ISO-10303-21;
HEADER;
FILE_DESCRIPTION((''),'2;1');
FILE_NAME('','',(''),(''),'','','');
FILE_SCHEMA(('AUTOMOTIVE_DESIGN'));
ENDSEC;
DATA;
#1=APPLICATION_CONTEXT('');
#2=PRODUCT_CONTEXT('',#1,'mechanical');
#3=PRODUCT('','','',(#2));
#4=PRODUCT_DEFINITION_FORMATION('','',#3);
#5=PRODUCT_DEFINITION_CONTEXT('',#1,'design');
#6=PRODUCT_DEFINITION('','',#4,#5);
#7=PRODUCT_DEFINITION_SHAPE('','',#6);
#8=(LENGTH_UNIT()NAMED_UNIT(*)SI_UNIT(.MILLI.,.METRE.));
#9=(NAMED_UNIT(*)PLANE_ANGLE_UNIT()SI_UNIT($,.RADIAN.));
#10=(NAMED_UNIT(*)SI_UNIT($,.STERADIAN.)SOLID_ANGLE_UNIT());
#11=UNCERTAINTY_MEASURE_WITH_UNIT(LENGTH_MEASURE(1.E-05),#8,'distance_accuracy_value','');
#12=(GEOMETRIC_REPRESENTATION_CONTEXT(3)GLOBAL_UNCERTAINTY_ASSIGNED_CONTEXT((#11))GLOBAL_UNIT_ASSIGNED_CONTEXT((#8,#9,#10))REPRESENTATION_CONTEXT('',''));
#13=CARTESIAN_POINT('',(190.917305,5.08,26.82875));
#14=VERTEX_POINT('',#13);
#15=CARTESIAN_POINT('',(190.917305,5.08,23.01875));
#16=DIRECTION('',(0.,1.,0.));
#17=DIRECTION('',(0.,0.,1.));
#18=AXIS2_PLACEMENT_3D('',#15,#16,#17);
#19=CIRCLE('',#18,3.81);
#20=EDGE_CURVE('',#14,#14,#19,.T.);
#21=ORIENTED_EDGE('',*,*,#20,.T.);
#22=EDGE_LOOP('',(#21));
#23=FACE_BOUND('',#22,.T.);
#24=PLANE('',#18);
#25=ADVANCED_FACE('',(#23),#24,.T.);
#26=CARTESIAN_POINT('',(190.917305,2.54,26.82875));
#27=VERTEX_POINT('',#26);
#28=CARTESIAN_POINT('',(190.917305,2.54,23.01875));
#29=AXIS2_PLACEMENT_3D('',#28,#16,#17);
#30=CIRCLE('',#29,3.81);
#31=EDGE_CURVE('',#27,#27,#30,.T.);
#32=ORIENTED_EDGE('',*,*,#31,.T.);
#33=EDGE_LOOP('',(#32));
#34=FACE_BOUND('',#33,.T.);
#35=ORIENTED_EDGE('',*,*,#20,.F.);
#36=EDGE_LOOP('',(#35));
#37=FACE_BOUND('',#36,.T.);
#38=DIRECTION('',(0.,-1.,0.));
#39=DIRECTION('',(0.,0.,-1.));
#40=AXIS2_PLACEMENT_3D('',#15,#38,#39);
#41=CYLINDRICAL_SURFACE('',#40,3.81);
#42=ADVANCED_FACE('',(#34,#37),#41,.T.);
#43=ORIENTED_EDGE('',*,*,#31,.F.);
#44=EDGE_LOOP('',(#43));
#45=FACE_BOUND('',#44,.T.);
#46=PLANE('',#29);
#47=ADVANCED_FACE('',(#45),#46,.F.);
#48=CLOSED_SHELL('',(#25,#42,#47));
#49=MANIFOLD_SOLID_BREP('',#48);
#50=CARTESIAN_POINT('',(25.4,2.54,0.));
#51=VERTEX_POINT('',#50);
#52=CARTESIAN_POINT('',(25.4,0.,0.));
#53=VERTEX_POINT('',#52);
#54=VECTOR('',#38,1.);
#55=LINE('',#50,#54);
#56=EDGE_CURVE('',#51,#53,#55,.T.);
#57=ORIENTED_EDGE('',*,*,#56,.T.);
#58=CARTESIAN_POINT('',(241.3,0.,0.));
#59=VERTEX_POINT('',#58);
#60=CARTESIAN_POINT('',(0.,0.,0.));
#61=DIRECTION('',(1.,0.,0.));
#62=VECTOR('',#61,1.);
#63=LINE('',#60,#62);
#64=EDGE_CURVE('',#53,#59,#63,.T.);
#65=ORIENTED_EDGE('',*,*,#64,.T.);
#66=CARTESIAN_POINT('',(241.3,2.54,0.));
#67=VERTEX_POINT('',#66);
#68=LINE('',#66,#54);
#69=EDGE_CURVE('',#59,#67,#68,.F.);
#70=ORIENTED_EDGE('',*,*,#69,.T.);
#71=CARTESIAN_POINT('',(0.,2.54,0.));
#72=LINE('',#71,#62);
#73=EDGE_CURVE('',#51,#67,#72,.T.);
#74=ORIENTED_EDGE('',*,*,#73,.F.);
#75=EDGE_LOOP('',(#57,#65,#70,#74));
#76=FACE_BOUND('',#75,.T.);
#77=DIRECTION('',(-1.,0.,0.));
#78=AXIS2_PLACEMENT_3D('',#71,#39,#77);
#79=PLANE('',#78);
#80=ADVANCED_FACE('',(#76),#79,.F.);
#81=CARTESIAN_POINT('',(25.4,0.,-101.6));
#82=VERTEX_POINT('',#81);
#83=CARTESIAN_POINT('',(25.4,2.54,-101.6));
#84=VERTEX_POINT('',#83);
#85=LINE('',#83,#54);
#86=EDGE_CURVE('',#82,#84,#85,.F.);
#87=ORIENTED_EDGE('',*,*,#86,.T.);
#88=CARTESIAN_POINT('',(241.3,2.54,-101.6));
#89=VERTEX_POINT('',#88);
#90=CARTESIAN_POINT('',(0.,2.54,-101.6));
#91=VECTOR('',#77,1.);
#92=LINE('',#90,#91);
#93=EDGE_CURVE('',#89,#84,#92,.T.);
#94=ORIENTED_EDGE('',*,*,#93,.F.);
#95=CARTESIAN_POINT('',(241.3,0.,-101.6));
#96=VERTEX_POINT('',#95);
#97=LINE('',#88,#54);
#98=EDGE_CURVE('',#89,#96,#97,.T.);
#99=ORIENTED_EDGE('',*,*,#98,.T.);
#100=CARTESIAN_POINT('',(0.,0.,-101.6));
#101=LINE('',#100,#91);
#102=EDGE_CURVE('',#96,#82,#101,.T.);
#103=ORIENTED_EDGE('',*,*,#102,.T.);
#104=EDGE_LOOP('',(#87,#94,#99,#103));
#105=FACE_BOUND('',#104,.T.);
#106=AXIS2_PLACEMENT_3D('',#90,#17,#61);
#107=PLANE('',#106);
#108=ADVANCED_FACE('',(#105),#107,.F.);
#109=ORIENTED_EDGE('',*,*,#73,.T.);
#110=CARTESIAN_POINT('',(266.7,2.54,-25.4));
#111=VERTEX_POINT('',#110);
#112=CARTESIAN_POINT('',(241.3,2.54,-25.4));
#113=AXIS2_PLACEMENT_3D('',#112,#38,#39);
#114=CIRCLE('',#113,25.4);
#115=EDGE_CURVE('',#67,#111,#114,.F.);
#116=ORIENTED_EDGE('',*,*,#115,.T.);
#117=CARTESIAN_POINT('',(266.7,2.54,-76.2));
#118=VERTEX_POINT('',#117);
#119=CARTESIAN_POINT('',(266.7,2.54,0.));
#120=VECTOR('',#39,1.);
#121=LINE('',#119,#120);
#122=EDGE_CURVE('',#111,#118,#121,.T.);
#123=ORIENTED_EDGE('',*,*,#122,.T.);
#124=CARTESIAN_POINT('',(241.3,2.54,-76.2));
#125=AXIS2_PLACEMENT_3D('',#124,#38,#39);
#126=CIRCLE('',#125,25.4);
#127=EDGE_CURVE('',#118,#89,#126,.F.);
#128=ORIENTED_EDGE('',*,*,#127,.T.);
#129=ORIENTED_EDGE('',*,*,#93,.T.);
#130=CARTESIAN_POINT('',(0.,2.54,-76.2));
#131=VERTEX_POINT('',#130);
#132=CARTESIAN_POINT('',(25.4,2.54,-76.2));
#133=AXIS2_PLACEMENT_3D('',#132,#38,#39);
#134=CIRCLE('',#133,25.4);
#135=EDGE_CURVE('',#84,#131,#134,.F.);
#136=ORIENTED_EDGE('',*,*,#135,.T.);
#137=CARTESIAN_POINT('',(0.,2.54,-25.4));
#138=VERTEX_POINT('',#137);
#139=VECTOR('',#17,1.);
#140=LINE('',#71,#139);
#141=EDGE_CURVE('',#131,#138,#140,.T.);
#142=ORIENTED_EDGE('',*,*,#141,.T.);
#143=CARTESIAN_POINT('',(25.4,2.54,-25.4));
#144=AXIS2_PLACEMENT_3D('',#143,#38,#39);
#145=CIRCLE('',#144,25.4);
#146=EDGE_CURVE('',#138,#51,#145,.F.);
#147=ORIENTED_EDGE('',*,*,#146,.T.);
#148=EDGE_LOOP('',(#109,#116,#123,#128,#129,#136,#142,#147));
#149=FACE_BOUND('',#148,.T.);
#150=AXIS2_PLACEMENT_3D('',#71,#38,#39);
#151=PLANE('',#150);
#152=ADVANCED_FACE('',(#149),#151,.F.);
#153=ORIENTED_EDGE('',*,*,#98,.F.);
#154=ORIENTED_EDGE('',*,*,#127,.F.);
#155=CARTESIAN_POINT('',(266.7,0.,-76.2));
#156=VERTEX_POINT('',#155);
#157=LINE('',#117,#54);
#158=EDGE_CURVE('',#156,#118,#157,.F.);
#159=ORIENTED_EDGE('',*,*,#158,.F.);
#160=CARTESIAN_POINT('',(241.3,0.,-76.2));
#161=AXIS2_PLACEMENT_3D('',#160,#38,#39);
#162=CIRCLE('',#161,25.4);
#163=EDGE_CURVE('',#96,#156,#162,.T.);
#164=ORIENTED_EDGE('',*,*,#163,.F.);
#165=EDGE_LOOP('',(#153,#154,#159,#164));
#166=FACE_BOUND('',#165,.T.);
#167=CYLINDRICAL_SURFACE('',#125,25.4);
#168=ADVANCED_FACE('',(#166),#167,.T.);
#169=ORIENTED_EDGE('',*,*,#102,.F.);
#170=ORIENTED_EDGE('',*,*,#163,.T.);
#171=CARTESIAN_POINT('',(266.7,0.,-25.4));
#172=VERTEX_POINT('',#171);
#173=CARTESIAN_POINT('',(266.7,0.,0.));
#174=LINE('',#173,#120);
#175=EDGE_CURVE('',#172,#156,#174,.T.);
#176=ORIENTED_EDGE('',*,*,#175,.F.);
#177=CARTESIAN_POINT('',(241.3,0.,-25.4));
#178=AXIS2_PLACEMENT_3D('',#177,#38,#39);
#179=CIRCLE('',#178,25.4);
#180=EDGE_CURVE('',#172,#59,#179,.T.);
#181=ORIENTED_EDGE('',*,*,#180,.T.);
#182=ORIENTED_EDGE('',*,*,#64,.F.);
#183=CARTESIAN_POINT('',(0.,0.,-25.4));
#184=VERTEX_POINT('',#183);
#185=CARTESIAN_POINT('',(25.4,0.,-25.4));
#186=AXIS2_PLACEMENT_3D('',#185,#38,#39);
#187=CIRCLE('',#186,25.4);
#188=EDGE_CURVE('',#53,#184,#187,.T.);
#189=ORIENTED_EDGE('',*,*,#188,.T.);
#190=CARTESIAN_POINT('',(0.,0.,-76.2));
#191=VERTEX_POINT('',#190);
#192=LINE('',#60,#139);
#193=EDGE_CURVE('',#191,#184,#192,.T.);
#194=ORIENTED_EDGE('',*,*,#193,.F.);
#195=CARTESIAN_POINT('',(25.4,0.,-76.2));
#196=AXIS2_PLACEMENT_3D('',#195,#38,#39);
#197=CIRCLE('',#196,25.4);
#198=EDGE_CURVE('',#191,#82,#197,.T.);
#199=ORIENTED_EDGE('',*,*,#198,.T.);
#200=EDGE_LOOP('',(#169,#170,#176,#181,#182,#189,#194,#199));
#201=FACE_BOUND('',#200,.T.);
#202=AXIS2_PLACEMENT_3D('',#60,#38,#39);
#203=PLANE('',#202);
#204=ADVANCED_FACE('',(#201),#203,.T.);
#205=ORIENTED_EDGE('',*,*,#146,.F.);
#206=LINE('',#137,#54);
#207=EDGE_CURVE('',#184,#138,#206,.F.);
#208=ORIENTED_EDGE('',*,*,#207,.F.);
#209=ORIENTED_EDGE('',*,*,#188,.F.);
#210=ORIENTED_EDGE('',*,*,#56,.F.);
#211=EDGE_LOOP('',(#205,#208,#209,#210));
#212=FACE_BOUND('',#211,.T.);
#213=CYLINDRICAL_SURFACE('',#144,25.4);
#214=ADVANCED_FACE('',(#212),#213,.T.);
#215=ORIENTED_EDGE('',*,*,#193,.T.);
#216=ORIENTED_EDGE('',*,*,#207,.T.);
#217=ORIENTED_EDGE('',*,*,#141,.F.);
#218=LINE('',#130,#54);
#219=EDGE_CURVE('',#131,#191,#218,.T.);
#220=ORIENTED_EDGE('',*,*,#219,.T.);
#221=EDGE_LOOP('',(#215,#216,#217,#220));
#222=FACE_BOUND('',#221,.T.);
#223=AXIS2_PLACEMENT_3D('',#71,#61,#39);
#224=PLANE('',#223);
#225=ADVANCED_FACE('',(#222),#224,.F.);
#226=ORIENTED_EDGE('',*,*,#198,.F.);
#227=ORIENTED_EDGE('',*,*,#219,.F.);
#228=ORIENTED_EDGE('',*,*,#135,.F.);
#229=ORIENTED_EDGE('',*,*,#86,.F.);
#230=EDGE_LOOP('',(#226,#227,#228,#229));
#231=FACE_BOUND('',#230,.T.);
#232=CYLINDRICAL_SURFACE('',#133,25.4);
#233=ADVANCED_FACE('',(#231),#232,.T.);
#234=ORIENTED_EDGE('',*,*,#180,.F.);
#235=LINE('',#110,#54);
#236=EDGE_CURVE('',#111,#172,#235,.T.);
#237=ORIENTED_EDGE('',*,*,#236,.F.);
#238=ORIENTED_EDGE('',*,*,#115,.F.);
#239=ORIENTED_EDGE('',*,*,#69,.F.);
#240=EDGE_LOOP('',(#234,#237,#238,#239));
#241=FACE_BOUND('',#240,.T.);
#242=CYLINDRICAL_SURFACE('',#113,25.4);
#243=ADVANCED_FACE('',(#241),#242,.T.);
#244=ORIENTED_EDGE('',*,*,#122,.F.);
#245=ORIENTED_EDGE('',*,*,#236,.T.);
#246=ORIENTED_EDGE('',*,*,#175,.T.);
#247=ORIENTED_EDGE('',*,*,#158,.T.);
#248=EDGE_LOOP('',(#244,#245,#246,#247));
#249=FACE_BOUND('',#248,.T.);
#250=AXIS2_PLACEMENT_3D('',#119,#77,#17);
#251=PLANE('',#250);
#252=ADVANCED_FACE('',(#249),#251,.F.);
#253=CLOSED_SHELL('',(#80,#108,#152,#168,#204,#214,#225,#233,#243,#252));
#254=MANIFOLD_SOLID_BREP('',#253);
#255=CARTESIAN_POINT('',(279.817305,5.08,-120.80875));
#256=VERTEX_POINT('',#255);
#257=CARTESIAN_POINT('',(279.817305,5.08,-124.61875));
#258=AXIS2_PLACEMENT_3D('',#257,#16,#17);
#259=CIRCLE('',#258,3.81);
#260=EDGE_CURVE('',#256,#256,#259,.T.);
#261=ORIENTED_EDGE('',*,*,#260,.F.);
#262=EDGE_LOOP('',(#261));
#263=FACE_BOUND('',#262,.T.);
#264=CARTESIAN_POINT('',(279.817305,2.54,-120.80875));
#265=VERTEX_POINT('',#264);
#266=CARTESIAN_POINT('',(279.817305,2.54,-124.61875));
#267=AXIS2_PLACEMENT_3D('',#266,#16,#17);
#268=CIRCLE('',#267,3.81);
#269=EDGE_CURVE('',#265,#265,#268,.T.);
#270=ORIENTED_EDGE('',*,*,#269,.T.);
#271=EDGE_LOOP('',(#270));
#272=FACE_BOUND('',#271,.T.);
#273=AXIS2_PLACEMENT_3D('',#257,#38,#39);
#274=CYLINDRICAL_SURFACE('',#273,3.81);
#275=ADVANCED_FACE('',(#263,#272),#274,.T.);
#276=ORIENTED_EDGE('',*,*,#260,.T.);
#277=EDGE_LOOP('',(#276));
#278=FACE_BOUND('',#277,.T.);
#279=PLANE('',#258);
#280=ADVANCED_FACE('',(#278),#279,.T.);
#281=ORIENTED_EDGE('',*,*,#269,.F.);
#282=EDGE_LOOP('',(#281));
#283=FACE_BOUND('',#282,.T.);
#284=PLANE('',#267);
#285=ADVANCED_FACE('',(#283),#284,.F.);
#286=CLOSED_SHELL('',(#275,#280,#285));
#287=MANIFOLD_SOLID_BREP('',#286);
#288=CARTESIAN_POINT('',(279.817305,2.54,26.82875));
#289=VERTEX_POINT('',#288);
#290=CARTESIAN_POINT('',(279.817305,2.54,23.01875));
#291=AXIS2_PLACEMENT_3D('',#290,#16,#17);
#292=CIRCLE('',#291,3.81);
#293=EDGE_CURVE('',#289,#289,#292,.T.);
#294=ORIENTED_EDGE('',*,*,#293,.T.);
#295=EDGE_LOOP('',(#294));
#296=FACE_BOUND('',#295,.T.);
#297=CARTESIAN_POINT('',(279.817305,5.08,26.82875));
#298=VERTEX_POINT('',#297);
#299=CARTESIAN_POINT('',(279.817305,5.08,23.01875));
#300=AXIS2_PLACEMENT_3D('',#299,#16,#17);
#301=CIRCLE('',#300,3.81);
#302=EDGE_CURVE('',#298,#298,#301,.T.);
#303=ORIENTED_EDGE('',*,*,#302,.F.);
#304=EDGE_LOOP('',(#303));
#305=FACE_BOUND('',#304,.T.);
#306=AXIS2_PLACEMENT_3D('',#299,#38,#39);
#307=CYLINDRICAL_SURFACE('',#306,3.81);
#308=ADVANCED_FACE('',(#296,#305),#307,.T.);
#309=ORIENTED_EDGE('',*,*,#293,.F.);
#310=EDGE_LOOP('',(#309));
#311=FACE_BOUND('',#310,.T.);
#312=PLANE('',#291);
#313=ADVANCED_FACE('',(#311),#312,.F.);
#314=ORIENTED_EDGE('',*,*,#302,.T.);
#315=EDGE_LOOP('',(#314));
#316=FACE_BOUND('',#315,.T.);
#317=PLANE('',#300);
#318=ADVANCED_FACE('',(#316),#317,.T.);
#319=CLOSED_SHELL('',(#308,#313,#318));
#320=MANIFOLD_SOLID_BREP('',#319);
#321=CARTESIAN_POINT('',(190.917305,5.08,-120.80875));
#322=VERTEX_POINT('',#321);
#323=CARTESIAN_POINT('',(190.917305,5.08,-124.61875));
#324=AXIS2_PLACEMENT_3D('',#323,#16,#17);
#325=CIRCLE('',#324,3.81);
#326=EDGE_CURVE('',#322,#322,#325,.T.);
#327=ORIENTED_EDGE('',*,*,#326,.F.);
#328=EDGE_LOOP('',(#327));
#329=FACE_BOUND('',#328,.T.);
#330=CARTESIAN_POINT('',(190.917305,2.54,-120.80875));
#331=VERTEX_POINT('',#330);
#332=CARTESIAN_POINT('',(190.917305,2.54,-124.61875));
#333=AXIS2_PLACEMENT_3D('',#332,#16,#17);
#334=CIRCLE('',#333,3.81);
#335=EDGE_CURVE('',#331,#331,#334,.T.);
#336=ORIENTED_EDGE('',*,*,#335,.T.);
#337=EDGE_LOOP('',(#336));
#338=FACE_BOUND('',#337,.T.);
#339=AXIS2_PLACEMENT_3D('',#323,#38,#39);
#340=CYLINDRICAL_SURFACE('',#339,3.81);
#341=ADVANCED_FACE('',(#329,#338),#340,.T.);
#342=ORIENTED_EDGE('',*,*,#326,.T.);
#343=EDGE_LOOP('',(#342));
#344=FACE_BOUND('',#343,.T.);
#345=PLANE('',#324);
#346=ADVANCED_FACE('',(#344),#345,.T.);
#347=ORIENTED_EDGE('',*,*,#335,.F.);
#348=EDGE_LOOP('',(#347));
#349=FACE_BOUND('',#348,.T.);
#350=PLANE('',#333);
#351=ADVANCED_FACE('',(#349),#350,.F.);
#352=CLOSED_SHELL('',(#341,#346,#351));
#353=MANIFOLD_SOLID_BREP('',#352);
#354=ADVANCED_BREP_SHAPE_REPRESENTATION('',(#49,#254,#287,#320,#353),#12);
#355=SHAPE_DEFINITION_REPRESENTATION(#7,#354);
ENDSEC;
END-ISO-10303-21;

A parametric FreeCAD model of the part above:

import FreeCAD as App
import Part
import Sketcher
Q = App.Units.Quantity


def edges_at(feature, points):
    """Names of the edges that pass closest to the given points."""
    edges = feature.Shape.Edges
    near = lambda p: min(range(len(edges)), key=lambda i: edges[i].distToShape(Part.Vertex(*p))[0])
    return sorted({f"Edge{near(p) + 1}" for p in points})


def add_polygon(sketch, points):
    """Adds a closed chain of lines whose ends are joined by coincident constraints."""
    first, n = sketch.GeometryCount, len(points)
    for a, b in zip(points, points[1:] + points[:1]):
        sketch.addGeometry(Part.LineSegment(App.Vector(*a, 0), App.Vector(*b, 0)), False)
    for i in range(n):
        sketch.addConstraint(Sketcher.Constraint("Coincident", first + i, 2, first + (i + 1) % n, 1))

doc = App.newDocument("Part")
params = doc.addObject("Spreadsheet::Sheet", "Params")
for row, (alias, value) in enumerate([
    ("sketch1_height", "4 in"),
    ("sketch1_width", "10.5 in"),
    ("pad1_length", "0.1 in"),
    ("fillet_radius", "1 in"),
    ("sketch2_diameter", "0.3 in"),
    ("pad2_length", "0.1 in"),
    ("sketch3_diameter", "0.3 in"),
    ("pad3_length", "0.1 in"),
    ("sketch4_diameter", "0.3 in"),
    ("pad4_length", "0.1 in"),
    ("sketch5_diameter", "0.3 in"),
    ("pad5_length", "0.1 in"),
], start=1):
    params.set(f"A{row}", alias)
    params.set(f"B{row}", "=" + value)
    params.setAlias(f"B{row}", alias)

body = doc.addObject("PartDesign::Body", "Body")

sketch1 = doc.addObject("Sketcher::SketchObject", "Sketch")
body.addObject(sketch1)
sketch1.AttachmentSupport = (doc.XZ_Plane, [""])
sketch1.MapMode = "FlatFace"
add_polygon(sketch1, [(0, -102), (0, 0), (267, 0), (267, -102)])
sketch1.addConstraint([
    Sketcher.Constraint("Vertical", 0),
    Sketcher.Constraint("Horizontal", 1),
    Sketcher.Constraint("Vertical", 2),
    Sketcher.Constraint("Horizontal", 3),
    Sketcher.Constraint("Coincident", 0, 2, -1, 1),
    Sketcher.Constraint("DistanceY", 0, 1, 0, 2, Q("4 in")),
    Sketcher.Constraint("DistanceX", 1, 1, 1, 2, Q("10.5 in")),
])
sketch1.setExpression("Constraints[9]", "Params.sketch1_height")
sketch1.setExpression("Constraints[10]", "Params.sketch1_width")
pad1 = doc.addObject("PartDesign::Pad", "Pad")
body.addObject(pad1)
pad1.Profile = sketch1
pad1.setExpression("Length", "Params.pad1_length")
pad1.Reversed = True
doc.recompute()

fillet = doc.addObject("PartDesign::Fillet", "Fillet")
body.addObject(fillet)
fillet.Base = (pad1, edges_at(pad1, [
    (0, 1.27, -101.6),
    (266.7, 1.27, -101.6),
    (266.7, 1.27, 0),
    (0, 1.27, 0),
]))
fillet.setExpression("Radius", "Params.fillet_radius")
body2 = doc.addObject("PartDesign::Body", "Body001")

sketch2 = doc.addObject("Sketcher::SketchObject", "Sketch001")
body2.addObject(sketch2)
sketch2.AttachmentSupport = (doc.getObject("XZ_Plane001"), [""])
sketch2.MapMode = "FlatFace"
sketch2.AttachmentOffset = App.Placement(App.Vector(0, 0, -0.1 * 25.4), App.Rotation())
sketch2.addGeometry(Part.Circle(App.Vector(190.9, -124.6, 0), App.Vector(0, 0, 1), 3.8), False)
sketch2.addConstraint([
    Sketcher.Constraint("Diameter", 0, Q("0.3 in")),
    Sketcher.Constraint("DistanceY", 0, 3, -1, 1, Q("4.90625 in")),
    Sketcher.Constraint("DistanceX", -1, 1, 0, 3, 190.917305),
])
sketch2.setExpression("Constraints[0]", "Params.sketch2_diameter")
pad2 = doc.addObject("PartDesign::Pad", "Pad001")
body2.addObject(pad2)
pad2.Profile = sketch2
pad2.setExpression("Length", "Params.pad2_length")
pad2.Reversed = True
body3 = doc.addObject("PartDesign::Body", "Body002")

sketch3 = doc.addObject("Sketcher::SketchObject", "Sketch002")
body3.addObject(sketch3)
sketch3.AttachmentSupport = (doc.getObject("XZ_Plane002"), [""])
sketch3.MapMode = "FlatFace"
sketch3.AttachmentOffset = App.Placement(App.Vector(0, 0, -0.1 * 25.4), App.Rotation())
sketch3.addGeometry(Part.Circle(App.Vector(279.8, -124.6, 0), App.Vector(0, 0, 1), 3.8), False)
sketch3.addConstraint([
    Sketcher.Constraint("Diameter", 0, Q("0.3 in")),
    Sketcher.Constraint("DistanceY", 0, 3, -1, 1, Q("4.90625 in")),
    Sketcher.Constraint("DistanceX", -1, 1, 0, 3, 279.817305),
])
sketch3.setExpression("Constraints[0]", "Params.sketch3_diameter")
pad3 = doc.addObject("PartDesign::Pad", "Pad002")
body3.addObject(pad3)
pad3.Profile = sketch3
pad3.setExpression("Length", "Params.pad3_length")
pad3.Reversed = True
body4 = doc.addObject("PartDesign::Body", "Body003")

sketch4 = doc.addObject("Sketcher::SketchObject", "Sketch003")
body4.addObject(sketch4)
sketch4.AttachmentSupport = (doc.getObject("XZ_Plane003"), [""])
sketch4.MapMode = "FlatFace"
sketch4.AttachmentOffset = App.Placement(App.Vector(0, 0, -0.1 * 25.4), App.Rotation())
sketch4.addGeometry(Part.Circle(App.Vector(279.8, 23, 0), App.Vector(0, 0, 1), 3.8), False)
sketch4.addConstraint([
    Sketcher.Constraint("Diameter", 0, Q("0.3 in")),
    Sketcher.Constraint("DistanceY", -1, 1, 0, 3, Q("0.90625 in")),
    Sketcher.Constraint("DistanceX", -1, 1, 0, 3, 279.817305),
])
sketch4.setExpression("Constraints[0]", "Params.sketch4_diameter")
pad4 = doc.addObject("PartDesign::Pad", "Pad003")
body4.addObject(pad4)
pad4.Profile = sketch4
pad4.setExpression("Length", "Params.pad4_length")
pad4.Reversed = True
body5 = doc.addObject("PartDesign::Body", "Body004")

sketch5 = doc.addObject("Sketcher::SketchObject", "Sketch004")
body5.addObject(sketch5)
sketch5.AttachmentSupport = (doc.getObject("XZ_Plane004"), [""])
sketch5.MapMode = "FlatFace"
sketch5.AttachmentOffset = App.Placement(App.Vector(0, 0, -0.1 * 25.4), App.Rotation())
sketch5.addGeometry(Part.Circle(App.Vector(190.9, 23, 0), App.Vector(0, 0, 1), 3.8), False)
sketch5.addConstraint([
    Sketcher.Constraint("Diameter", 0, Q("0.3 in")),
    Sketcher.Constraint("DistanceY", -1, 1, 0, 3, Q("0.90625 in")),
    Sketcher.Constraint("DistanceX", -1, 1, 0, 3, 190.917305),
])
sketch5.setExpression("Constraints[0]", "Params.sketch5_diameter")
pad5 = doc.addObject("PartDesign::Pad", "Pad004")
body5.addObject(pad5)
pad5.Profile = sketch5
pad5.setExpression("Length", "Params.pad5_length")
pad5.Reversed = True

doc.recompute()
